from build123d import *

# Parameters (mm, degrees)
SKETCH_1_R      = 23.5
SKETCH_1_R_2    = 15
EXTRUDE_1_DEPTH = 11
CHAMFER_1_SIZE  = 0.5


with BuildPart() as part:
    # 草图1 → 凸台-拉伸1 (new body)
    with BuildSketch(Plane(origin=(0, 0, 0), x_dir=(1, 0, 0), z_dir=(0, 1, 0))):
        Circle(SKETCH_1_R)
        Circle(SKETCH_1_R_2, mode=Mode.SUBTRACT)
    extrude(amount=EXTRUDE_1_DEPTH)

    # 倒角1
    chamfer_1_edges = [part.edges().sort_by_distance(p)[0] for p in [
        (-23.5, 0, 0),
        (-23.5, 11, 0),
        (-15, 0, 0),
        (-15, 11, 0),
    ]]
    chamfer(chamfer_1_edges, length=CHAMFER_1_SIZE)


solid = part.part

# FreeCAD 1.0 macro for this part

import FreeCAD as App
import Part
import Sketcher


def edges_at(feature, points):
    """Names of the edges that pass closest to the given points."""
    edges = feature.Shape.Edges
    near = lambda p: min(range(len(edges)), key=lambda i: edges[i].distToShape(Part.Vertex(*p))[0])
    return sorted({f"Edge{near(p) + 1}" for p in points})

doc = App.newDocument("Part")
params = doc.addObject("Spreadsheet::Sheet", "Params")
for row, (alias, value) in enumerate([
    ("sketch1_diameter", "47 mm"),
    ("sketch1_diameter2", "30 mm"),
    ("pad1_length", "11 mm"),
    ("chamfer_size", "0.5 mm"),
], start=1):
    params.set(f"A{row}", alias)
    params.set(f"B{row}", "=" + value)
    params.setAlias(f"B{row}", alias)

body = doc.addObject("PartDesign::Body", "Body")

sketch1 = body.newObject("Sketcher::SketchObject", "Sketch")
sketch1.AttachmentSupport = (doc.getObject("XZ_Plane"), [""])
sketch1.MapMode = "FlatFace"
sketch1.addGeometry(Part.Circle(App.Vector(0, 0, 0), App.Vector(0, 0, 1), 24), False)
sketch1.addGeometry(Part.Circle(App.Vector(0, 0, 0), App.Vector(0, 0, 1), 15), False)
sketch1.addConstraint(Sketcher.Constraint("Coincident", 0, 3, -1, 1))
sketch1.addConstraint(Sketcher.Constraint("Coincident", 1, 3, -1, 1))
sketch1.addConstraint(Sketcher.Constraint("Diameter", 0, 47.0))
sketch1.addConstraint(Sketcher.Constraint("Diameter", 1, 30.0))
sketch1.setExpression("Constraints[2]", "Params.sketch1_diameter")
sketch1.setExpression("Constraints[3]", "Params.sketch1_diameter2")
pad1 = body.newObject("PartDesign::Pad", "Pad")
pad1.Profile = sketch1
pad1.setExpression("Length", "Params.pad1_length")
pad1.Reversed = True
doc.recompute()

chamfer = body.newObject("PartDesign::Chamfer", "Chamfer")
chamfer.Base = (pad1, edges_at(pad1, [
    (-23.5, 0, 0),
    (-23.5, 11, 0),
    (-15, 0, 0),
    (-15, 11, 0),
]))
chamfer.setExpression("Size", "Params.chamfer_size")

doc.recompute()
